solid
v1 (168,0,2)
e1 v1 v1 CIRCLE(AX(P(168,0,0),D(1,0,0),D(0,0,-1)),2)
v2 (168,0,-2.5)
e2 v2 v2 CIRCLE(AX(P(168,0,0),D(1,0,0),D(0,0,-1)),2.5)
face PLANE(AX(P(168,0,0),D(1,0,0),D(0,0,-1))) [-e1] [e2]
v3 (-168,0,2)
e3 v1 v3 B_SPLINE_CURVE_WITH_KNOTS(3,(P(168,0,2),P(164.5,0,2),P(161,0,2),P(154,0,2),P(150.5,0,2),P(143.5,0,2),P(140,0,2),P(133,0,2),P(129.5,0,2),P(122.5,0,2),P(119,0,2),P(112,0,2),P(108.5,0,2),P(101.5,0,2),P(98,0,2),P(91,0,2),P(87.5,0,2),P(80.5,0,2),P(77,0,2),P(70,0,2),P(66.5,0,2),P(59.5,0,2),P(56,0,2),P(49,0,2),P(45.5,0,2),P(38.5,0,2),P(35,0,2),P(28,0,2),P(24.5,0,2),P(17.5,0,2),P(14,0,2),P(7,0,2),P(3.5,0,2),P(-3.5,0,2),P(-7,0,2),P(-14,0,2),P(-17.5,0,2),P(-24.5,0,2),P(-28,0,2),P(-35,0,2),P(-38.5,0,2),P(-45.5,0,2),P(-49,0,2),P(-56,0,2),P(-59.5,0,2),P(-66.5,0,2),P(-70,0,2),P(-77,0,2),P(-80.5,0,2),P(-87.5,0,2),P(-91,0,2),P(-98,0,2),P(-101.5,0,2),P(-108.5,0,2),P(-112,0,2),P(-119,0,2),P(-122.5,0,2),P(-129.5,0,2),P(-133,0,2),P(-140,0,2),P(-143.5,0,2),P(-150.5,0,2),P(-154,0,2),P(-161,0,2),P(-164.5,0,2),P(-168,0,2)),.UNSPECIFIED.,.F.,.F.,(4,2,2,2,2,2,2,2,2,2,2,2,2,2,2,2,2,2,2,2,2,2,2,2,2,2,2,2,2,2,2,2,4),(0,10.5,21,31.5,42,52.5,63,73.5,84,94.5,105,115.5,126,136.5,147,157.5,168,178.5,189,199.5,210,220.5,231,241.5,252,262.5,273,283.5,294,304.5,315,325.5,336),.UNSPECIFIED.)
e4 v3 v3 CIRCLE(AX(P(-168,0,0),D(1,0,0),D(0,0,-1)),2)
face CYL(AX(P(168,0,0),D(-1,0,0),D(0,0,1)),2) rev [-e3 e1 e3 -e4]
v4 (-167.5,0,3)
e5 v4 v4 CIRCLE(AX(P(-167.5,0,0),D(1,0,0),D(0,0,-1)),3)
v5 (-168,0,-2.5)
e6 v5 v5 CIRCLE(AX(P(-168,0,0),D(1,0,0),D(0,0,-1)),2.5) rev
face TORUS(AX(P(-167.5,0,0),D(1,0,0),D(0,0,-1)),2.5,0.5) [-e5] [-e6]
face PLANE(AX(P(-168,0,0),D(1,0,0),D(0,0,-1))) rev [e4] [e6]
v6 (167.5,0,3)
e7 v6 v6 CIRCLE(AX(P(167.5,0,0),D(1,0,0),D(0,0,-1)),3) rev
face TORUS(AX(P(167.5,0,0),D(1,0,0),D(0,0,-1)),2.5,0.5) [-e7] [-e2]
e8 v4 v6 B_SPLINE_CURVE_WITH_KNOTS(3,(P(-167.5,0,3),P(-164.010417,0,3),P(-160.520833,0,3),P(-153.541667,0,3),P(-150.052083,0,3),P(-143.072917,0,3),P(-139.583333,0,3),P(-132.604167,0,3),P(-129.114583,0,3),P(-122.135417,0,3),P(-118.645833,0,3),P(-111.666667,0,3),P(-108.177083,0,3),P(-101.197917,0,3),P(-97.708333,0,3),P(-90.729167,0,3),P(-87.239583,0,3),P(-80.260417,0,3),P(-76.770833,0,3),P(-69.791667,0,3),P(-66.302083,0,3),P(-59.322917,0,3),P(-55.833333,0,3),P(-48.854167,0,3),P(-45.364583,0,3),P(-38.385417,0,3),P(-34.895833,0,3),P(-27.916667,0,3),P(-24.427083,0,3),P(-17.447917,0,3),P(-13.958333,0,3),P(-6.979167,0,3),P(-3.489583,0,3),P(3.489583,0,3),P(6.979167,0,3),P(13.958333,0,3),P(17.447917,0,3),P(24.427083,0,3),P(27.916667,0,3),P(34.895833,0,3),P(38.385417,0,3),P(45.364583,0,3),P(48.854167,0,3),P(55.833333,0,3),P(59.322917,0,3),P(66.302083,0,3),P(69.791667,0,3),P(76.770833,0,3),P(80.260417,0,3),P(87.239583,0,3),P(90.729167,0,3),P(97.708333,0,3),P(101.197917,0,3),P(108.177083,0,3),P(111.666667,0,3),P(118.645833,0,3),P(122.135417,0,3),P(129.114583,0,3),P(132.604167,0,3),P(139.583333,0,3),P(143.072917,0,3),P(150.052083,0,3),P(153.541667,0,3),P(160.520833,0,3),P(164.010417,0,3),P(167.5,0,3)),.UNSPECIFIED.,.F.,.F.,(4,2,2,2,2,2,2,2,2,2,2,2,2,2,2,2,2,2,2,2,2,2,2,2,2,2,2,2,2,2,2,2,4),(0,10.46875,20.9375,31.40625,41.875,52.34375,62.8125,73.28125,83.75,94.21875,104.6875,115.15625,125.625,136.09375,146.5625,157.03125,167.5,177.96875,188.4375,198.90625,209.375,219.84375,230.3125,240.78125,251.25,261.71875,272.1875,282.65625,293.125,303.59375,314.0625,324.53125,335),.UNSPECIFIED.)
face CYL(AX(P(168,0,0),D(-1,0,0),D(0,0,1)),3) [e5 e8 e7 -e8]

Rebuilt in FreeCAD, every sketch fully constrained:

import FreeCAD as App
import Part
import Sketcher
Q = App.Units.Quantity


def edges_at(feature, points):
    """Names of the edges that pass closest to the given points."""
    edges = feature.Shape.Edges
    near = lambda p: min(range(len(edges)), key=lambda i: edges[i].distToShape(Part.Vertex(*p))[0])
    return sorted({f"Edge{near(p) + 1}" for p in points})

doc = App.newDocument("Part")
body = doc.addObject("PartDesign::Body", "Body")

sketch1 = body.newObject("Sketcher::SketchObject", "Sketch")
sketch1.AttachmentSupport = (doc.getObject("YZ_Plane"), [""])
sketch1.MapMode = "FlatFace"
sketch1.addGeometry([
    Part.Circle(App.Vector(0, 0, 0), App.Vector(0, 0, 1), 3),
    Part.Circle(App.Vector(0, 0, 0), App.Vector(0, 0, 1), 2),
], False)
sketch1.addConstraint([
    Sketcher.Constraint("Coincident", 0, 3, -1, 1),
    Sketcher.Constraint("Coincident", 1, 3, -1, 1),
    Sketcher.Constraint("Diameter", 0, Q("6 mm")),
    Sketcher.Constraint("Diameter", 1, Q("4 mm")),
])
pad1 = body.newObject("PartDesign::Pad", "Pad")
pad1.Profile = sketch1
pad1.Length = 336
pad1.Midplane = True
doc.recompute()

fillet = body.newObject("PartDesign::Fillet", "Fillet")
fillet.Base = (pad1, edges_at(pad1, [(-168, 0, -3), (168, 0, -3)]))
fillet.Radius = 0.5

doc.recompute()
